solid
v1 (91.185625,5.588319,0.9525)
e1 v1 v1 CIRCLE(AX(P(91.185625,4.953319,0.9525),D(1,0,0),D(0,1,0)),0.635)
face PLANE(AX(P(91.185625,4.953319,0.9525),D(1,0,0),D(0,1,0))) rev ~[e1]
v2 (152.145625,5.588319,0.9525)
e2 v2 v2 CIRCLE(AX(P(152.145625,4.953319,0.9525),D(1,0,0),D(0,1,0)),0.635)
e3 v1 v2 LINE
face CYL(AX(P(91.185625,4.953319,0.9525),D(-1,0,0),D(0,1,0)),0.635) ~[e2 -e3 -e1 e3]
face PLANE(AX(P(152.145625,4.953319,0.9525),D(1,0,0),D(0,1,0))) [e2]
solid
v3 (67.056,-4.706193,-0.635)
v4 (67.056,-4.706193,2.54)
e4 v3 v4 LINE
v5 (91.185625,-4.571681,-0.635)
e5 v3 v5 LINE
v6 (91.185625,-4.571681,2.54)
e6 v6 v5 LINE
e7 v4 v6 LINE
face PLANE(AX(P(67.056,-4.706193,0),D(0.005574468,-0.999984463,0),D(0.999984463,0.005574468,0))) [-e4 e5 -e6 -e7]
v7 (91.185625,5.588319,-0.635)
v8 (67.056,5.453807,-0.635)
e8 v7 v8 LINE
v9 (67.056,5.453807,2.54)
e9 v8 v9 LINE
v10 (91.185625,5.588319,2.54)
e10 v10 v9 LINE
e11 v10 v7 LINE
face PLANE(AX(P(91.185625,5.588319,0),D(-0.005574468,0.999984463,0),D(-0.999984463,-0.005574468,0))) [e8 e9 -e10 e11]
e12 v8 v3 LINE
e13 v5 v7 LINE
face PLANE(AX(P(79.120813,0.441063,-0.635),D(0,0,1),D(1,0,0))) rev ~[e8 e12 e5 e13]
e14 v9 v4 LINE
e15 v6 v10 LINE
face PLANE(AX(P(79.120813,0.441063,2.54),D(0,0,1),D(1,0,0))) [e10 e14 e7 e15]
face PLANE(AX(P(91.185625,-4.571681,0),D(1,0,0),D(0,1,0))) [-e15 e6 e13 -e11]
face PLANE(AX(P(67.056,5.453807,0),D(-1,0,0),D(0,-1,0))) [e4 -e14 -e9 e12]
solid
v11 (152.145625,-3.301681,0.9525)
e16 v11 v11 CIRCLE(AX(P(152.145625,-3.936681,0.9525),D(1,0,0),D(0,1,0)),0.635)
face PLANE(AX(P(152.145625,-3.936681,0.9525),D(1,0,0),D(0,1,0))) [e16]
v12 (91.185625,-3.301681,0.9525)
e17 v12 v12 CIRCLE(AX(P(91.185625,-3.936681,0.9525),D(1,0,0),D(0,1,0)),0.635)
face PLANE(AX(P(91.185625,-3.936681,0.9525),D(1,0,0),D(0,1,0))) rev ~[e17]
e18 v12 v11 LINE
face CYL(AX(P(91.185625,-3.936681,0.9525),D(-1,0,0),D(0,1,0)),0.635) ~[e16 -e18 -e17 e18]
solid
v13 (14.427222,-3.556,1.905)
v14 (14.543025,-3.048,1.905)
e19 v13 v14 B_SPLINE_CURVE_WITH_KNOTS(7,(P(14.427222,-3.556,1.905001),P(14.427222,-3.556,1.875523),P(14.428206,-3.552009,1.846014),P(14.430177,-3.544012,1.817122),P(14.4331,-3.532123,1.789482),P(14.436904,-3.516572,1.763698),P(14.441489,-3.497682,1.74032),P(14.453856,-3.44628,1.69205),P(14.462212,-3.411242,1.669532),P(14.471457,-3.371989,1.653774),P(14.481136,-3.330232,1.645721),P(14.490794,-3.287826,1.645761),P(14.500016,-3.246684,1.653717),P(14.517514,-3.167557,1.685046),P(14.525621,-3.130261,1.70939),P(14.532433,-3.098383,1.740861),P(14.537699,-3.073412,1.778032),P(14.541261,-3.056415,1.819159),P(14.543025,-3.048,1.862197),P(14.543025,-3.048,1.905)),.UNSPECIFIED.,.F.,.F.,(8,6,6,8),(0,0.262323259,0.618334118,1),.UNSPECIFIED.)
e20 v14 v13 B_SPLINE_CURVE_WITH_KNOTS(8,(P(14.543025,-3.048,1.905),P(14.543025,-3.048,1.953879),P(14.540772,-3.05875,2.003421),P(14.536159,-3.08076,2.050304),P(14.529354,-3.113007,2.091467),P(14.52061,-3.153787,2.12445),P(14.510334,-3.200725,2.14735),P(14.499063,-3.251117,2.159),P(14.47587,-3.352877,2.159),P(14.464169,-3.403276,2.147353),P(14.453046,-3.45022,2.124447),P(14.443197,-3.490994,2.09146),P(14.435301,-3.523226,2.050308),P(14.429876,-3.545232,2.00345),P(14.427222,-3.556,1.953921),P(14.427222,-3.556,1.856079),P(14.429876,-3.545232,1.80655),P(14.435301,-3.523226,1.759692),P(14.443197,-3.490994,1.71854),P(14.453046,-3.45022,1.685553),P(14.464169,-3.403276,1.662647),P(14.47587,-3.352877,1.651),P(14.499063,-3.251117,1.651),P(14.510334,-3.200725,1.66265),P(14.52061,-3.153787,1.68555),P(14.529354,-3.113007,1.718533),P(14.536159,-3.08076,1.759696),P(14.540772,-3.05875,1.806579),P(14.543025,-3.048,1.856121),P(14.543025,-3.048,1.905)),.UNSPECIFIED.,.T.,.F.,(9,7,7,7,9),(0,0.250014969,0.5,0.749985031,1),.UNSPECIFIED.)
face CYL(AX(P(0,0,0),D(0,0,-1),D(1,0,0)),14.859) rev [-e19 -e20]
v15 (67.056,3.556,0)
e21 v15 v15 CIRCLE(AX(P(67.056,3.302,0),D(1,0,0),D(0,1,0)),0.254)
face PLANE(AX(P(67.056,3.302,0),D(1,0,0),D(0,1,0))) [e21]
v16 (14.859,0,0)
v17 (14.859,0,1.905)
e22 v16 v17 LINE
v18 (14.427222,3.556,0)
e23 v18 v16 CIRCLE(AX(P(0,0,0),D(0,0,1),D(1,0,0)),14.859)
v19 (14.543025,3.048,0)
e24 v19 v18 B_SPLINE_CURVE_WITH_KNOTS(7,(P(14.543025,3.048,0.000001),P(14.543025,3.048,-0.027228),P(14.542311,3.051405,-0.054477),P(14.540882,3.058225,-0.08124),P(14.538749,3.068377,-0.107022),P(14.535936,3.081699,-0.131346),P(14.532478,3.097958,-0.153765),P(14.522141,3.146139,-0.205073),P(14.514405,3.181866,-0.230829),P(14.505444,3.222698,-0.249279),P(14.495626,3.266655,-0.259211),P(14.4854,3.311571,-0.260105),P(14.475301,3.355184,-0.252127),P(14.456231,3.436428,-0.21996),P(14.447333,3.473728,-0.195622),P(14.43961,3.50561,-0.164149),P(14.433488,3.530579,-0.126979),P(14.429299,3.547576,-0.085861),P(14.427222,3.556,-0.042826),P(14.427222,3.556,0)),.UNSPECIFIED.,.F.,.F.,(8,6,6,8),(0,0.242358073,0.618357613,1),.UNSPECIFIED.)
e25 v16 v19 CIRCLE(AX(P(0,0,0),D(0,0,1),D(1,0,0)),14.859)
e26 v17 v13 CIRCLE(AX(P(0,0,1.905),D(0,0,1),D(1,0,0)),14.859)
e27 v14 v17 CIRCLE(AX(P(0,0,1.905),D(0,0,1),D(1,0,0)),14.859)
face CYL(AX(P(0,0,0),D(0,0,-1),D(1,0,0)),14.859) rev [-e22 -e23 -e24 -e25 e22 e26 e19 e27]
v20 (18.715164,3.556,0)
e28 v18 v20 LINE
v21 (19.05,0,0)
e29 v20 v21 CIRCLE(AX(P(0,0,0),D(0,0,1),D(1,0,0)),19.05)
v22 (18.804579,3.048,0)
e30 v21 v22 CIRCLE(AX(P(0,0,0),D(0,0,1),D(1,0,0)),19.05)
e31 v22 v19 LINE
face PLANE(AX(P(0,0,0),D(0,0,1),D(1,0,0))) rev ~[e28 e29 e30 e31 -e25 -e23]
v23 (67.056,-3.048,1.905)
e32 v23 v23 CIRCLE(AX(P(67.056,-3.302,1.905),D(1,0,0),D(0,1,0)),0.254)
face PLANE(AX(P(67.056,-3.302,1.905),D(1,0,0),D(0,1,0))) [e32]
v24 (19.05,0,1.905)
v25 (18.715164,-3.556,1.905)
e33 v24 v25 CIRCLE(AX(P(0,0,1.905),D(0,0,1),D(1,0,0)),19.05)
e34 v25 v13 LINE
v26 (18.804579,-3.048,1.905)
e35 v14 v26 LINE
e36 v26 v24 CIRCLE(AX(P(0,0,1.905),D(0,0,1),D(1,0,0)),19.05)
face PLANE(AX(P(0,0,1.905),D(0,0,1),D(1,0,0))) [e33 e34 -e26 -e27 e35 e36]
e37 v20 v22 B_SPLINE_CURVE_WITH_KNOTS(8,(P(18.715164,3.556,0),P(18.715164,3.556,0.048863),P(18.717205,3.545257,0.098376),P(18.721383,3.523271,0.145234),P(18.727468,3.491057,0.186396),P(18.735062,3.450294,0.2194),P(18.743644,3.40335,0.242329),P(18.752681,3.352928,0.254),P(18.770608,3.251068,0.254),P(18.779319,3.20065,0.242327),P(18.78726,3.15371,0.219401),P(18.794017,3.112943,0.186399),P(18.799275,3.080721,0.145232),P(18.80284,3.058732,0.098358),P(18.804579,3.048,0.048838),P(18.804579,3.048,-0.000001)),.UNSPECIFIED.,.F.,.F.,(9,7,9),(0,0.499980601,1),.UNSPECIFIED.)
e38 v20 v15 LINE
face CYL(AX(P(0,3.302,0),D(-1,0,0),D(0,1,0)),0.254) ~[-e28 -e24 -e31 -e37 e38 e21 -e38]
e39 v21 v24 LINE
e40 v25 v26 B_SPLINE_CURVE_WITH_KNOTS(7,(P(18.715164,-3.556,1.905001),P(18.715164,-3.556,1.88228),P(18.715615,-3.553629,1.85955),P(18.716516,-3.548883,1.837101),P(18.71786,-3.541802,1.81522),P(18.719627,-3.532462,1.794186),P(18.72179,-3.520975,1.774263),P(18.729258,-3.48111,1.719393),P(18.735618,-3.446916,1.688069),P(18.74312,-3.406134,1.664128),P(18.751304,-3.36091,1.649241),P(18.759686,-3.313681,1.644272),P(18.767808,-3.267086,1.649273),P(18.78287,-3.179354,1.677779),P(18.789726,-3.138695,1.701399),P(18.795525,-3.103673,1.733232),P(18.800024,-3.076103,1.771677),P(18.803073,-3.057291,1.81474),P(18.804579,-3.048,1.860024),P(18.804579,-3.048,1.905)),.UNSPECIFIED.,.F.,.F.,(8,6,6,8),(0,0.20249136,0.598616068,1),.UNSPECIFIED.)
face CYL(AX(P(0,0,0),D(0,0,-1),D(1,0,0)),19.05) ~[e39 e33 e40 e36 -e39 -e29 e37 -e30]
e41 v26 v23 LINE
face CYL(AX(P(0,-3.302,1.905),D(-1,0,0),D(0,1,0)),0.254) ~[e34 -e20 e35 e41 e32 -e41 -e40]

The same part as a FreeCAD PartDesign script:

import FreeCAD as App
import Part
import Sketcher
from FreeCAD import Vector
Q = App.Units.Quantity

doc = App.newDocument("Part")
body = doc.addObject("PartDesign::Body", "Body")

sketch1 = body.newObject("Sketcher::SketchObject", "Sketch")
sketch1.AttachmentSupport = (doc.getObject("XY_Plane"), [""])
sketch1.MapMode = "FlatFace"
sketch1.addGeometry(Part.Circle(Vector(0, 0, 0), Vector(0, 0, 1), 19), False)
sketch1.addGeometry(Part.Circle(Vector(0, 0, 0), Vector(0, 0, 1), 15), False)
sketch1.addConstraint(Sketcher.Constraint("Coincident", 0, 3, -1, 1))
sketch1.addConstraint(Sketcher.Constraint("Coincident", 1, 3, -1, 1))
sketch1.addConstraint(Sketcher.Constraint("Diameter", 0, Q("1.5 in")))
sketch1.addConstraint(Sketcher.Constraint("Diameter", 1, Q("1.17 in")))
pad1 = body.newObject("PartDesign::Pad", "Pad")
pad1.Profile = sketch1
pad1.Length = Q("0.075 in")

sketch2 = body.newObject("Sketcher::SketchObject", "Sketch001")
sketch2.AttachmentSupport = (doc.getObject("YZ_Plane"), [""])
sketch2.MapMode = "FlatFace"
sketch2.addGeometry(Part.Circle(Vector(-3.3, 1.91, 0), Vector(0, 0, 1), 0.25), False)
sketch2.addConstraint(Sketcher.Constraint("Diameter", 0, Q("0.02 in")))
sketch2.addConstraint(Sketcher.Constraint("DistanceX", 0, 3, -1, 1, Q("0.13 in")))
sketch2.addConstraint(Sketcher.Constraint("DistanceY", -1, 1, 0, 3, Q("0.075 in")))
pad2 = body.newObject("PartDesign::Pad", "Pad001")
pad2.Profile = sketch2
pad2.Length = Q("2.64 in")

sketch3 = body.newObject("Sketcher::SketchObject", "Sketch002")
sketch3.AttachmentSupport = (doc.getObject("YZ_Plane"), [""])
sketch3.MapMode = "FlatFace"
sketch3.addGeometry(Part.Circle(Vector(3.3, 0, 0), Vector(0, 0, 1), 0.25), False)
sketch3.addConstraint(Sketcher.Constraint("PointOnObject", 0, 3, -1))
sketch3.addConstraint(Sketcher.Constraint("Diameter", 0, Q("0.02 in")))
sketch3.addConstraint(Sketcher.Constraint("DistanceX", -1, 1, 0, 3, Q("0.13 in")))
pad3 = body.newObject("PartDesign::Pad", "Pad002")
pad3.Profile = sketch3
pad3.Length = Q("2.64 in")

sketch4 = body.newObject("Sketcher::SketchObject", "Sketch003")
sketch4.AttachmentSupport = (doc.getObject("XY_Plane"), [""])
sketch4.MapMode = "FlatFace"
sketch4.addGeometry(Part.Circle(Vector(0, 0, 0), Vector(0, 0, 1), 15), False)
sketch4.addConstraint(Sketcher.Constraint("Coincident", 0, 3, -1, 1))
sketch4.addConstraint(Sketcher.Constraint("Diameter", 0, Q("1.17 in")))
pocket1 = body.newObject("PartDesign::Pocket", "Pocket")
pocket1.Profile = sketch4
pocket1.Type = "ThroughAll"
pocket1.Midplane = True
body2 = doc.addObject("PartDesign::Body", "Body001")

sketch5 = body2.newObject("Sketcher::SketchObject", "Sketch004")
sketch5.AttachmentSupport = (doc.getObject("XY_Plane001"), [""])
sketch5.MapMode = "FlatFace"
sketch5.addGeometry(Part.LineSegment(Vector(91, 6, 0), Vector(67, 5, 0)), False)
sketch5.addGeometry(Part.LineSegment(Vector(67, 5, 0), Vector(67, -5, 0)), False)
sketch5.addGeometry(Part.LineSegment(Vector(67, -5, 0), Vector(91, -5, 0)), False)
sketch5.addGeometry(Part.LineSegment(Vector(91, -5, 0), Vector(91, 6, 0)), False)
sketch5.addConstraint(Sketcher.Constraint("Coincident", 0, 2, 1, 1))
sketch5.addConstraint(Sketcher.Constraint("Coincident", 1, 2, 2, 1))
sketch5.addConstraint(Sketcher.Constraint("Coincident", 2, 2, 3, 1))
sketch5.addConstraint(Sketcher.Constraint("Coincident", 3, 2, 0, 1))
sketch5.addConstraint(Sketcher.Constraint("Vertical", 1))
sketch5.addConstraint(Sketcher.Constraint("Vertical", 3))
sketch5.addConstraint(Sketcher.Constraint("Parallel", 0, 2))
sketch5.addConstraint(Sketcher.Constraint("DistanceY", 1, 2, 1, 1, Q("0.4 in")))
sketch5.addConstraint(Sketcher.Constraint("Distance", 0, Q("0.95 in")))
sketch5.addConstraint(Sketcher.Constraint("DistanceX", -1, 1, 0, 2, Q("2.64 in")))
sketch5.addConstraint(Sketcher.Constraint("DistanceY", 2, 2, -1, 1, 4.571681))
sketch5.addConstraint(Sketcher.Constraint("DistanceY", 1, 2, 2, 2, 0.134512))
pad4 = body2.newObject("PartDesign::Pad", "Pad003")
pad4.Profile = sketch5
pad4.Type = "TwoLengths"
pad4.Length = Q("0.1 in")
pad4.Length2 = Q("0.025 in")
body3 = doc.addObject("PartDesign::Body", "Body002")

sketch6 = body3.newObject("Sketcher::SketchObject", "Sketch005")
sketch6.AttachmentSupport = (doc.getObject("YZ_Plane002"), [""])
sketch6.MapMode = "FlatFace"
sketch6.AttachmentOffset = App.Placement(Vector(0, 0, 91.185625), App.Rotation())
sketch6.addGeometry(Part.Circle(Vector(-3.9, 1, 0), Vector(0, 0, 1), 0.6), False)
sketch6.addConstraint(Sketcher.Constraint("Diameter", 0, Q("0.05 in")))
sketch6.addConstraint(Sketcher.Constraint("DistanceY", -1, 1, 0, 3, Q("0.0375 in")))
sketch6.addConstraint(Sketcher.Constraint("DistanceX", 0, 3, -1, 1, 3.936681))
pad5 = body3.newObject("PartDesign::Pad", "Pad004")
pad5.Profile = sketch6
pad5.Length = Q("2.4 in")
body4 = doc.addObject("PartDesign::Body", "Body003")

sketch7 = body4.newObject("Sketcher::SketchObject", "Sketch006")
sketch7.AttachmentSupport = (doc.getObject("YZ_Plane003"), [""])
sketch7.MapMode = "FlatFace"
sketch7.AttachmentOffset = App.Placement(Vector(0, 0, 91.185625), App.Rotation())
sketch7.addGeometry(Part.Circle(Vector(5, 1, 0), Vector(0, 0, 1), 0.6), False)
sketch7.addConstraint(Sketcher.Constraint("Diameter", 0, Q("0.05 in")))
sketch7.addConstraint(Sketcher.Constraint("DistanceY", -1, 1, 0, 3, Q("0.0375 in")))
sketch7.addConstraint(Sketcher.Constraint("DistanceX", -1, 1, 0, 3, 4.953319))
pad6 = body4.newObject("PartDesign::Pad", "Pad005")
pad6.Profile = sketch7
pad6.Length = Q("2.4 in")

doc.recompute()
